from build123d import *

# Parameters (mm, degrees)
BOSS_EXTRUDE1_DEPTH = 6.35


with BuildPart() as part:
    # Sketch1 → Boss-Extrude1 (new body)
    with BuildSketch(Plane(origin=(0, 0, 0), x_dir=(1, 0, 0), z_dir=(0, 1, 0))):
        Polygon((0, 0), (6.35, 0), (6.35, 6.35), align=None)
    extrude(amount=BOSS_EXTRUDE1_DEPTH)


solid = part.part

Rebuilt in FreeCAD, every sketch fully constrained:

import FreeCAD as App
import Part
import Sketcher
from FreeCAD import Vector
Q = App.Units.Quantity

doc = App.newDocument("Part")
body = doc.addObject("PartDesign::Body", "Body")

sketch1 = doc.addObject("Sketcher::SketchObject", "Sketch")
body.addObject(sketch1)
sketch1.AttachmentSupport = (doc.XZ_Plane, [""])
sketch1.MapMode = "FlatFace"
sketch1.addGeometry(Part.LineSegment(Vector(0, 0, 0), Vector(6, 0, 0)), False)
sketch1.addGeometry(Part.LineSegment(Vector(6, 0, 0), Vector(6, -6, 0)), False)
sketch1.addGeometry(Part.LineSegment(Vector(6, -6, 0), Vector(0, 0, 0)), False)
sketch1.addConstraint(Sketcher.Constraint("Coincident", 0, 2, 1, 1))
sketch1.addConstraint(Sketcher.Constraint("Coincident", 1, 2, 2, 1))
sketch1.addConstraint(Sketcher.Constraint("Coincident", 2, 2, 0, 1))
sketch1.addConstraint(Sketcher.Constraint("Horizontal", 0))
sketch1.addConstraint(Sketcher.Constraint("Vertical", 1))
sketch1.addConstraint(Sketcher.Constraint("Coincident", 2, 2, -1, 1))
sketch1.addConstraint(Sketcher.Constraint("Equal", 0, 1))
sketch1.addConstraint(Sketcher.Constraint("DistanceX", 0, 1, 0, 2, Q("0.25 in")))
pad1 = doc.addObject("PartDesign::Pad", "Pad")
body.addObject(pad1)
pad1.Profile = sketch1
pad1.Length = Q("0.25 in")
pad1.Reversed = True

doc.recompute()
